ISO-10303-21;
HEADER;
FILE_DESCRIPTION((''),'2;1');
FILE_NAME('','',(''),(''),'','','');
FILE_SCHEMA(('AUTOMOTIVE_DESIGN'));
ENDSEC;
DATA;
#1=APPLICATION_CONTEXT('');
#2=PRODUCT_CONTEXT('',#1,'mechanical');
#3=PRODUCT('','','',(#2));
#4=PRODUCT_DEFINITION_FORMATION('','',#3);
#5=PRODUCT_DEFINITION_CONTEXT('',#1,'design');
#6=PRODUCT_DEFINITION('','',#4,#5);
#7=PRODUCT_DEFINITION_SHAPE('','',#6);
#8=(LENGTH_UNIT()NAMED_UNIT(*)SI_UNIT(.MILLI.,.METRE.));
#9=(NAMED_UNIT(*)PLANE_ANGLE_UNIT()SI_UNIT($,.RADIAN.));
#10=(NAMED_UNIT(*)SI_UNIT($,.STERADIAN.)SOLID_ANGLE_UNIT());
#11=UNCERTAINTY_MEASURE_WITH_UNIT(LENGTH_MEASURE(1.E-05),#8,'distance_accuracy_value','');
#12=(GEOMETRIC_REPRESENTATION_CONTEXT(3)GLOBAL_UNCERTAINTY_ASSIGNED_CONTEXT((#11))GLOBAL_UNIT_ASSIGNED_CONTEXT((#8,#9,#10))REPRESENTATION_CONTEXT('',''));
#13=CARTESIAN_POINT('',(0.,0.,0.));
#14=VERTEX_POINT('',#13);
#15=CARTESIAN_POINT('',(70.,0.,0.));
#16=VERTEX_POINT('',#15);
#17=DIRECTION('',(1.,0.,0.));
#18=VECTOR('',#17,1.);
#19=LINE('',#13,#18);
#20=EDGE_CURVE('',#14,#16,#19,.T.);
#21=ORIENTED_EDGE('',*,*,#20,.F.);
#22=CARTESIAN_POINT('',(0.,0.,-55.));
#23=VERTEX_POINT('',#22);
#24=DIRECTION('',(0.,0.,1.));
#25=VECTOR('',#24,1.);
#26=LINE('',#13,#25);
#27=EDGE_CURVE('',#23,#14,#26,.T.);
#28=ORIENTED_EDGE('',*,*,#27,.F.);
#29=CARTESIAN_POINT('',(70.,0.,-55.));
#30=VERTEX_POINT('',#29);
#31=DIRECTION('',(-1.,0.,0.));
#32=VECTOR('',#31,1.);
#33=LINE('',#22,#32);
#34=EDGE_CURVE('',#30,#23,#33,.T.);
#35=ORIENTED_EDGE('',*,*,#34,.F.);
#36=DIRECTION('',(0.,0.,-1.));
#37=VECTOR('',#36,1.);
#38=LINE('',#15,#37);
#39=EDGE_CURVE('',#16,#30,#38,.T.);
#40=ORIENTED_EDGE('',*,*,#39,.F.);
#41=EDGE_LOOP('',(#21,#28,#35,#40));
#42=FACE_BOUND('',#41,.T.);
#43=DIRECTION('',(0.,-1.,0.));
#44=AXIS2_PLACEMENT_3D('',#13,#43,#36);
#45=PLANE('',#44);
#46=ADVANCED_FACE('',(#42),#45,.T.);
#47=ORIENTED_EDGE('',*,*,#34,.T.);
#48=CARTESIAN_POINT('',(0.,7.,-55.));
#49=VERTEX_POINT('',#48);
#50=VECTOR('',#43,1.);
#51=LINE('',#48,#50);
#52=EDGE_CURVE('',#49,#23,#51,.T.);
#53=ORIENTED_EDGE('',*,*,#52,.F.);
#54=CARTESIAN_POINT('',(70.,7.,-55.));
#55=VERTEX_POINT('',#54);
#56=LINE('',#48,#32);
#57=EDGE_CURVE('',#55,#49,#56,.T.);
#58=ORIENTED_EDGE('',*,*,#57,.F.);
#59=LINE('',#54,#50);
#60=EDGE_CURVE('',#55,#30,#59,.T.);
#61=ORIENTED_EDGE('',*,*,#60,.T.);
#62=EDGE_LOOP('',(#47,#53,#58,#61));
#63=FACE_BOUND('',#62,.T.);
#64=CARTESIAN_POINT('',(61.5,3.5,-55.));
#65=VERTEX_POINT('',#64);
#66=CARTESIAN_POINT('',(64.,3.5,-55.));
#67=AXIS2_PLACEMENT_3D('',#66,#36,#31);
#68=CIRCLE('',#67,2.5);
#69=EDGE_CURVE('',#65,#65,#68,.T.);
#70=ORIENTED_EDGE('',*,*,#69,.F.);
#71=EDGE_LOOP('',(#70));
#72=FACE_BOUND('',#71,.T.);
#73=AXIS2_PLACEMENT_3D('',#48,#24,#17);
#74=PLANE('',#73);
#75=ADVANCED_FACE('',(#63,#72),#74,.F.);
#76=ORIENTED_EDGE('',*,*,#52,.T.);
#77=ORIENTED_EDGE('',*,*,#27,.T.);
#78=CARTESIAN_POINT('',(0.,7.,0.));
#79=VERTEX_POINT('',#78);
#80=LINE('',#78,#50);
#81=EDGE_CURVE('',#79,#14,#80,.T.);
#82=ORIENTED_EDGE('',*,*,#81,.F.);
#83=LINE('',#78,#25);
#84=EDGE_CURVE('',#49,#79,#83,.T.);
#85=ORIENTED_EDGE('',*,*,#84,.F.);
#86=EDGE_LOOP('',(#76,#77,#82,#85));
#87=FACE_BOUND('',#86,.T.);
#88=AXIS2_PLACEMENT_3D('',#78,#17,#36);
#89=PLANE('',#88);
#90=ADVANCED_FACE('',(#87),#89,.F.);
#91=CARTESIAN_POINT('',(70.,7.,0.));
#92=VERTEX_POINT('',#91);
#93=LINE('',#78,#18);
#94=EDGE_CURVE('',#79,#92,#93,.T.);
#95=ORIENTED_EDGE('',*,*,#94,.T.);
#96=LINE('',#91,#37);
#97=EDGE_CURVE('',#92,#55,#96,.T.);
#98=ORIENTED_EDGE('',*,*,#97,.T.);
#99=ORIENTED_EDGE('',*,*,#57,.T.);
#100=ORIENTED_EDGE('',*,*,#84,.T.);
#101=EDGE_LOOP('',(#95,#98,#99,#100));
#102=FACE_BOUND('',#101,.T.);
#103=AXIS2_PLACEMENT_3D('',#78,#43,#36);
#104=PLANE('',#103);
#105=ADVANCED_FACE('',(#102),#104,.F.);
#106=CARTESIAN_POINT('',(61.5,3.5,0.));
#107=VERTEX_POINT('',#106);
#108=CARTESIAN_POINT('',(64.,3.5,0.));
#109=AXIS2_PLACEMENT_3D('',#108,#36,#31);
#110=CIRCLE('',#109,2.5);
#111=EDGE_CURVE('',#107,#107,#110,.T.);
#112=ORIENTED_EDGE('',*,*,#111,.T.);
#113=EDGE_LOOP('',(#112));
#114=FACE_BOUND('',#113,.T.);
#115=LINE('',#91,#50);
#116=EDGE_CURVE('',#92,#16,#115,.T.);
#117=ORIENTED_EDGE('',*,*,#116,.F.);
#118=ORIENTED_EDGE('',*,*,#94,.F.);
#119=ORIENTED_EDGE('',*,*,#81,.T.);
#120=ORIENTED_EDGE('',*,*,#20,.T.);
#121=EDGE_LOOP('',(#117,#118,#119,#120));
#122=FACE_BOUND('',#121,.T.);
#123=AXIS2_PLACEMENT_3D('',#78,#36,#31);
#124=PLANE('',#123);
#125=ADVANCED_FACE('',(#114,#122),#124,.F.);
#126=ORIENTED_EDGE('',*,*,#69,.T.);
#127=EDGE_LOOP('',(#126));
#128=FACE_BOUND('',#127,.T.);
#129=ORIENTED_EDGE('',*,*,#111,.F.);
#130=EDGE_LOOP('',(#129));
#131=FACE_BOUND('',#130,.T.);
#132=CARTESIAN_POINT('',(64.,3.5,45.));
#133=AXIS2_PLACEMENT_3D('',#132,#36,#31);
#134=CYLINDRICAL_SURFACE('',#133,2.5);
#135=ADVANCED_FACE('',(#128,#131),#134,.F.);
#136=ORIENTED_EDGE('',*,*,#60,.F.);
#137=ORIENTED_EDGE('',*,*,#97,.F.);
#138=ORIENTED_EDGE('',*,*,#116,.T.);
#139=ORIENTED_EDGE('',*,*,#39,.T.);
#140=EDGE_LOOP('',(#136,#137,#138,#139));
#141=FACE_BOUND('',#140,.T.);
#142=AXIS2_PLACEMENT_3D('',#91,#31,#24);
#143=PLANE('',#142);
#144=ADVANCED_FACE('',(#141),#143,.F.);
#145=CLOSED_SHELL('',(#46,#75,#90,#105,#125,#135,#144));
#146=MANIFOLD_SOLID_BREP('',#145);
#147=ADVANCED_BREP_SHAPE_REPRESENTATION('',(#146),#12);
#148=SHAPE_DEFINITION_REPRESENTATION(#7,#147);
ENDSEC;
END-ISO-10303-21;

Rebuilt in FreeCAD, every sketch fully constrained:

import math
import FreeCAD as App
import Part
import Sketcher

V = App.Vector


def add_polygon(sketch, points):
    """Adds a closed chain of lines whose ends are joined by coincident constraints."""
    first, n = sketch.GeometryCount, len(points)
    for a, b in zip(points, points[1:] + points[:1]):
        sketch.addGeometry(Part.LineSegment(App.Vector(*a, 0), App.Vector(*b, 0)), False)
    for i in range(n):
        sketch.addConstraint(Sketcher.Constraint("Coincident", first + i, 2, first + (i + 1) % n, 1))

doc = App.newDocument("Part")
body = doc.addObject("PartDesign::Body", "Body")

# Sketch on XZ plane
sketch1 = body.newObject("Sketcher::SketchObject", "Sketch")
sketch1.AttachmentSupport = (doc.getObject("XZ_Plane"), [""])
sketch1.MapMode = "FlatFace"
add_polygon(sketch1, [(0, -55), (0, 0), (70, 0), (70, -55)])  # lines 0-3
sketch1.addConstraint([
    Sketcher.Constraint("Vertical", 0),
    Sketcher.Constraint("Horizontal", 1),
    Sketcher.Constraint("Vertical", 2),
    Sketcher.Constraint("Horizontal", 3),
    Sketcher.Constraint("Coincident", 0, 2, -1, 1),
    Sketcher.Constraint("DistanceX", 1, 1, 1, 2, 70.0),
    Sketcher.Constraint("DistanceY", 0, 1, 0, 2, 55.0),
])
pad1 = body.newObject("PartDesign::Pad", "Pad")
pad1.Profile = sketch1
pad1.Length = 7
pad1.Reversed = True

# Sketch on XY plane
sketch2 = body.newObject("Sketcher::SketchObject", "Sketch001")
sketch2.AttachmentSupport = (doc.getObject("XY_Plane"), [""])
sketch2.MapMode = "FlatFace"
sketch2.AttachmentOffset = App.Placement(V(0, 0, -55), App.Rotation())
sketch2.addGeometry([
    Part.ArcOfCircle(Part.Circle(V(64, 3.5, 0), V(0, 0, 1), 2.5), math.radians(90), math.radians(180)),
    Part.ArcOfCircle(Part.Circle(V(64, 3.5, 0), V(0, 0, 1), 2.5), math.radians(-90), math.radians(90)),
    Part.ArcOfCircle(Part.Circle(V(64, 3.5, 0), V(0, 0, 1), 2.5), math.radians(180), math.radians(270)),
], False)
sketch2.addConstraint([
    Sketcher.Constraint("Tangent", 0, 1, 1, 2),
    Sketcher.Constraint("Tangent", 1, 1, 2, 2),
    Sketcher.Constraint("Tangent", 2, 1, 0, 2),
    Sketcher.Constraint("Horizontal", 1, 3, 2, 1),
    Sketcher.Constraint("Vertical", 2, 3, 0, 1),
    Sketcher.Constraint("Vertical", 0, 1, 1, 1),
    Sketcher.Constraint("Radius", 0, 2.5),
    Sketcher.Constraint("DistanceX", -1, 1, 0, 3, 64.0),
    Sketcher.Constraint("DistanceY", -1, 1, 0, 1, 6.0),
])
pocket1 = body.newObject("PartDesign::Pocket", "Pocket")
pocket1.Profile = sketch2
pocket1.Length = 100
pocket1.Reversed = True

doc.recompute()
